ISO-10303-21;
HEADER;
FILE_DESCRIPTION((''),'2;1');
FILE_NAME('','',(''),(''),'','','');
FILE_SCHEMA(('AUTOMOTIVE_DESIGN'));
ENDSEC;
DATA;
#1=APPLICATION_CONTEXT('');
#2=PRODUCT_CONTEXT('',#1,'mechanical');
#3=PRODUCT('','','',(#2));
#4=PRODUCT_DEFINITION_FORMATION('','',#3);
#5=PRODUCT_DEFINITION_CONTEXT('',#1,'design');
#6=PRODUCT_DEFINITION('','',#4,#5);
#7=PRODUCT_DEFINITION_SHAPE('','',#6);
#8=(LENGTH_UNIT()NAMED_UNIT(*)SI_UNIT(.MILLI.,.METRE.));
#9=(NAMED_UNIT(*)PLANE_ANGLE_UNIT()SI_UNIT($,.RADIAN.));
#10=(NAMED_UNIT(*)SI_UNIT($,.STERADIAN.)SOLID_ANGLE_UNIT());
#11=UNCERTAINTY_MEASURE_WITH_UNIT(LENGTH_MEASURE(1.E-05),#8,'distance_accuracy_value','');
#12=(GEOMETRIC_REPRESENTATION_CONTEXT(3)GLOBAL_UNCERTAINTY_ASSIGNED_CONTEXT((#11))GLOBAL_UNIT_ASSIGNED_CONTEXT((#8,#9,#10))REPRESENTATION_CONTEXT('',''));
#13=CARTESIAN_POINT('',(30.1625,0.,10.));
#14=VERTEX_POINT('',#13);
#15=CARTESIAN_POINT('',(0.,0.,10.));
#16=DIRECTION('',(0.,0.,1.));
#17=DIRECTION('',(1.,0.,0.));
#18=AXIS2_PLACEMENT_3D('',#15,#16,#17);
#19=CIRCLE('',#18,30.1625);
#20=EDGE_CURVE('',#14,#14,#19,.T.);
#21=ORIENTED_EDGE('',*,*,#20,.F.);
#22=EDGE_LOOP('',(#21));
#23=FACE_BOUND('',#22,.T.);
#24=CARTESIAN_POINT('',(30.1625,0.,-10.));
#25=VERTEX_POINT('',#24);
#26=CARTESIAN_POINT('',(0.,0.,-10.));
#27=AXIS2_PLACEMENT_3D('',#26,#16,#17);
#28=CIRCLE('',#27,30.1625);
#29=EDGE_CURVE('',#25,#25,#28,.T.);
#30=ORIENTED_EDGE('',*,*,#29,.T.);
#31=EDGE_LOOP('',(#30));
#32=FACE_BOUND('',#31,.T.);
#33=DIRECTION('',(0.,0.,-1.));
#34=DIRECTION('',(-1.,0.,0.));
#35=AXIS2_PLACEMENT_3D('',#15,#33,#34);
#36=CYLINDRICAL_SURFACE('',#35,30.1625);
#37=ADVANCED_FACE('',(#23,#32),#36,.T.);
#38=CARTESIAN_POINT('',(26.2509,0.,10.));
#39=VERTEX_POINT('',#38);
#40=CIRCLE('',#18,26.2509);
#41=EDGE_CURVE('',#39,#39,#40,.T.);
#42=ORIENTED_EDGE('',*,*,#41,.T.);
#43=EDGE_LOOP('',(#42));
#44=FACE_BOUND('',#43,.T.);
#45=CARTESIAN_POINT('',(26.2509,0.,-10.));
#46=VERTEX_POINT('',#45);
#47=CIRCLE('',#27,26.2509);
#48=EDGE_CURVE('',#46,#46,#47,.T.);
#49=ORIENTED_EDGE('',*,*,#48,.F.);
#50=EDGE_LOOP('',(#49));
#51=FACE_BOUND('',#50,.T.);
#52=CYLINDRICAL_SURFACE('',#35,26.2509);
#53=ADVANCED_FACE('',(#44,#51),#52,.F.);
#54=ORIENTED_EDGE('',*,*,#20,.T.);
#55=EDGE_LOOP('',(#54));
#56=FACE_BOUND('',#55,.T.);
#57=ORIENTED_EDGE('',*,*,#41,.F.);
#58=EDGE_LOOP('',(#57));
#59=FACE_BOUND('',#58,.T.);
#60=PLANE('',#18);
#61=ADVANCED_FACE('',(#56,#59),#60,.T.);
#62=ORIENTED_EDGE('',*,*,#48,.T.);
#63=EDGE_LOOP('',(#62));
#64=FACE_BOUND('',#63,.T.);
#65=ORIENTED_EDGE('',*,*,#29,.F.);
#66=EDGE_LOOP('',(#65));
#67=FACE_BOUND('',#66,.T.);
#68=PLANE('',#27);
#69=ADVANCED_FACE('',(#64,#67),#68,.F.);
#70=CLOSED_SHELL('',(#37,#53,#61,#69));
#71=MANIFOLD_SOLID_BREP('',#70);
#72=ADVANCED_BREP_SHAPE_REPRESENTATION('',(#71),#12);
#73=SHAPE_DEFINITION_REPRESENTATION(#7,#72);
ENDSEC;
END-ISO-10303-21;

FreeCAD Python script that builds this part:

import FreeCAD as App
import Part
import Sketcher
from FreeCAD import Vector
Q = App.Units.Quantity

doc = App.newDocument("Part")
body = doc.addObject("PartDesign::Body", "Body")

# Sketch on XY plane
sketch1 = body.newObject("Sketcher::SketchObject", "Sketch")
sketch1.AttachmentSupport = (doc.getObject("XY_Plane"), [""])
sketch1.MapMode = "FlatFace"
sketch1.addGeometry([
    Part.Circle(Vector(0, 0, 0), Vector(0, 0, 1), 30),
    Part.Circle(Vector(0, 0, 0), Vector(0, 0, 1), 26),
], False)
sketch1.addConstraint([
    Sketcher.Constraint("Coincident", 0, 3, -1, 1),
    Sketcher.Constraint("Coincident", 1, 3, -1, 1),
    Sketcher.Constraint("Diameter", 0, Q("2.375 in")),
    Sketcher.Constraint("Diameter", 1, Q("2.067 in")),
])
pad1 = body.newObject("PartDesign::Pad", "Pad")
pad1.Profile = sketch1
pad1.Length = 20
pad1.Midplane = True

doc.recompute()
